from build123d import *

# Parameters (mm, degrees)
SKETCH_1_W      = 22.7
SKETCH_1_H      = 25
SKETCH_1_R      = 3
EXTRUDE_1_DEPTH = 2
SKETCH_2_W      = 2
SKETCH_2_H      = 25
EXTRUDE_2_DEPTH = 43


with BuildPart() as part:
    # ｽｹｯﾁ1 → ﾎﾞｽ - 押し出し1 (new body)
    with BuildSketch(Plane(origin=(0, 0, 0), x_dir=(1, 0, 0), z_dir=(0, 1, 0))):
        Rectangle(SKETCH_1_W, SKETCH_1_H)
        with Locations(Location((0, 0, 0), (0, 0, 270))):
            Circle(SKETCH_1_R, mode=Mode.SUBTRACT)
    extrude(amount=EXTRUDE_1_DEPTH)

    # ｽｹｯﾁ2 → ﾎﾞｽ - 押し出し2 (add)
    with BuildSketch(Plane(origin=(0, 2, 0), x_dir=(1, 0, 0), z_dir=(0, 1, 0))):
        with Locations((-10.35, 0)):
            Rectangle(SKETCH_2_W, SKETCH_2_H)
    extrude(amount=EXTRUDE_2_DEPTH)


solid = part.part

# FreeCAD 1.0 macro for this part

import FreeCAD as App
import Part
import Sketcher

V = App.Vector

doc = App.newDocument("Part")
body = doc.addObject("PartDesign::Body", "Body")

# Sketch on XZ plane
sketch1 = body.newObject("Sketcher::SketchObject", "Sketch")
sketch1.AttachmentSupport = (doc.getObject("XZ_Plane"), [""])
sketch1.MapMode = "FlatFace"
sketch1.addGeometry(Part.LineSegment(V(-11.3, -12.5, 0), V(-11.3, 12.5, 0)), False)
sketch1.addGeometry(Part.LineSegment(V(-11.3, 12.5, 0), V(11.3, 12.5, 0)), False)
sketch1.addGeometry(Part.LineSegment(V(11.3, 12.5, 0), V(11.3, -12.5, 0)), False)
sketch1.addGeometry(Part.LineSegment(V(11.3, -12.5, 0), V(-11.3, -12.5, 0)), False)
sketch1.addGeometry(Part.Circle(V(0, 0, 0), V(0, 0, 1), 3), False)
sketch1.addConstraint(Sketcher.Constraint("Coincident", 0, 2, 1, 1))
sketch1.addConstraint(Sketcher.Constraint("Coincident", 1, 2, 2, 1))
sketch1.addConstraint(Sketcher.Constraint("Coincident", 2, 2, 3, 1))
sketch1.addConstraint(Sketcher.Constraint("Coincident", 3, 2, 0, 1))
sketch1.addConstraint(Sketcher.Constraint("Vertical", 0))
sketch1.addConstraint(Sketcher.Constraint("Horizontal", 1))
sketch1.addConstraint(Sketcher.Constraint("Vertical", 2))
sketch1.addConstraint(Sketcher.Constraint("Horizontal", 3))
sketch1.addConstraint(Sketcher.Constraint("Coincident", 4, 3, -1, 1))
sketch1.addConstraint(Sketcher.Constraint("Symmetric", 0, 2, 2, 2, -1, 1))
sketch1.addConstraint(Sketcher.Constraint("Diameter", 4, 6.0))
sketch1.addConstraint(Sketcher.Constraint("DistanceY", 0, 1, 0, 2, 25.0))
sketch1.addConstraint(Sketcher.Constraint("DistanceX", 1, 1, 1, 2, 22.7))
pad1 = body.newObject("PartDesign::Pad", "Pad")
pad1.Profile = sketch1
pad1.Length = 2
pad1.Reversed = True

# Sketch on XZ plane
sketch2 = body.newObject("Sketcher::SketchObject", "Sketch001")
sketch2.AttachmentSupport = (doc.getObject("XZ_Plane"), [""])
sketch2.MapMode = "FlatFace"
sketch2.AttachmentOffset = App.Placement(V(0, 0, -2), App.Rotation())
sketch2.addGeometry(Part.LineSegment(V(-11.3, -12.5, 0), V(-11.3, 12.5, 0)), False)
sketch2.addGeometry(Part.LineSegment(V(-11.3, 12.5, 0), V(-9.3, 12.5, 0)), False)
sketch2.addGeometry(Part.LineSegment(V(-9.3, 12.5, 0), V(-9.3, -12.5, 0)), False)
sketch2.addGeometry(Part.LineSegment(V(-9.3, -12.5, 0), V(-11.3, -12.5, 0)), False)
sketch2.addConstraint(Sketcher.Constraint("Coincident", 0, 2, 1, 1))
sketch2.addConstraint(Sketcher.Constraint("Coincident", 1, 2, 2, 1))
sketch2.addConstraint(Sketcher.Constraint("Coincident", 2, 2, 3, 1))
sketch2.addConstraint(Sketcher.Constraint("Coincident", 3, 2, 0, 1))
sketch2.addConstraint(Sketcher.Constraint("Vertical", 0))
sketch2.addConstraint(Sketcher.Constraint("Horizontal", 1))
sketch2.addConstraint(Sketcher.Constraint("Vertical", 2))
sketch2.addConstraint(Sketcher.Constraint("Horizontal", 3))
sketch2.addConstraint(Sketcher.Constraint("DistanceX", 1, 1, 1, 2, 2.0))
sketch2.addConstraint(Sketcher.Constraint("DistanceY", 0, 1, 0, 2, 25.0))
sketch2.addConstraint(Sketcher.Constraint("DistanceY", -1, 1, 0, 2, 12.5))
sketch2.addConstraint(Sketcher.Constraint("DistanceX", 0, 2, -1, 1, 11.35))
pad2 = body.newObject("PartDesign::Pad", "Pad001")
pad2.Profile = sketch2
pad2.Length = 43
pad2.Reversed = True

doc.recompute()
